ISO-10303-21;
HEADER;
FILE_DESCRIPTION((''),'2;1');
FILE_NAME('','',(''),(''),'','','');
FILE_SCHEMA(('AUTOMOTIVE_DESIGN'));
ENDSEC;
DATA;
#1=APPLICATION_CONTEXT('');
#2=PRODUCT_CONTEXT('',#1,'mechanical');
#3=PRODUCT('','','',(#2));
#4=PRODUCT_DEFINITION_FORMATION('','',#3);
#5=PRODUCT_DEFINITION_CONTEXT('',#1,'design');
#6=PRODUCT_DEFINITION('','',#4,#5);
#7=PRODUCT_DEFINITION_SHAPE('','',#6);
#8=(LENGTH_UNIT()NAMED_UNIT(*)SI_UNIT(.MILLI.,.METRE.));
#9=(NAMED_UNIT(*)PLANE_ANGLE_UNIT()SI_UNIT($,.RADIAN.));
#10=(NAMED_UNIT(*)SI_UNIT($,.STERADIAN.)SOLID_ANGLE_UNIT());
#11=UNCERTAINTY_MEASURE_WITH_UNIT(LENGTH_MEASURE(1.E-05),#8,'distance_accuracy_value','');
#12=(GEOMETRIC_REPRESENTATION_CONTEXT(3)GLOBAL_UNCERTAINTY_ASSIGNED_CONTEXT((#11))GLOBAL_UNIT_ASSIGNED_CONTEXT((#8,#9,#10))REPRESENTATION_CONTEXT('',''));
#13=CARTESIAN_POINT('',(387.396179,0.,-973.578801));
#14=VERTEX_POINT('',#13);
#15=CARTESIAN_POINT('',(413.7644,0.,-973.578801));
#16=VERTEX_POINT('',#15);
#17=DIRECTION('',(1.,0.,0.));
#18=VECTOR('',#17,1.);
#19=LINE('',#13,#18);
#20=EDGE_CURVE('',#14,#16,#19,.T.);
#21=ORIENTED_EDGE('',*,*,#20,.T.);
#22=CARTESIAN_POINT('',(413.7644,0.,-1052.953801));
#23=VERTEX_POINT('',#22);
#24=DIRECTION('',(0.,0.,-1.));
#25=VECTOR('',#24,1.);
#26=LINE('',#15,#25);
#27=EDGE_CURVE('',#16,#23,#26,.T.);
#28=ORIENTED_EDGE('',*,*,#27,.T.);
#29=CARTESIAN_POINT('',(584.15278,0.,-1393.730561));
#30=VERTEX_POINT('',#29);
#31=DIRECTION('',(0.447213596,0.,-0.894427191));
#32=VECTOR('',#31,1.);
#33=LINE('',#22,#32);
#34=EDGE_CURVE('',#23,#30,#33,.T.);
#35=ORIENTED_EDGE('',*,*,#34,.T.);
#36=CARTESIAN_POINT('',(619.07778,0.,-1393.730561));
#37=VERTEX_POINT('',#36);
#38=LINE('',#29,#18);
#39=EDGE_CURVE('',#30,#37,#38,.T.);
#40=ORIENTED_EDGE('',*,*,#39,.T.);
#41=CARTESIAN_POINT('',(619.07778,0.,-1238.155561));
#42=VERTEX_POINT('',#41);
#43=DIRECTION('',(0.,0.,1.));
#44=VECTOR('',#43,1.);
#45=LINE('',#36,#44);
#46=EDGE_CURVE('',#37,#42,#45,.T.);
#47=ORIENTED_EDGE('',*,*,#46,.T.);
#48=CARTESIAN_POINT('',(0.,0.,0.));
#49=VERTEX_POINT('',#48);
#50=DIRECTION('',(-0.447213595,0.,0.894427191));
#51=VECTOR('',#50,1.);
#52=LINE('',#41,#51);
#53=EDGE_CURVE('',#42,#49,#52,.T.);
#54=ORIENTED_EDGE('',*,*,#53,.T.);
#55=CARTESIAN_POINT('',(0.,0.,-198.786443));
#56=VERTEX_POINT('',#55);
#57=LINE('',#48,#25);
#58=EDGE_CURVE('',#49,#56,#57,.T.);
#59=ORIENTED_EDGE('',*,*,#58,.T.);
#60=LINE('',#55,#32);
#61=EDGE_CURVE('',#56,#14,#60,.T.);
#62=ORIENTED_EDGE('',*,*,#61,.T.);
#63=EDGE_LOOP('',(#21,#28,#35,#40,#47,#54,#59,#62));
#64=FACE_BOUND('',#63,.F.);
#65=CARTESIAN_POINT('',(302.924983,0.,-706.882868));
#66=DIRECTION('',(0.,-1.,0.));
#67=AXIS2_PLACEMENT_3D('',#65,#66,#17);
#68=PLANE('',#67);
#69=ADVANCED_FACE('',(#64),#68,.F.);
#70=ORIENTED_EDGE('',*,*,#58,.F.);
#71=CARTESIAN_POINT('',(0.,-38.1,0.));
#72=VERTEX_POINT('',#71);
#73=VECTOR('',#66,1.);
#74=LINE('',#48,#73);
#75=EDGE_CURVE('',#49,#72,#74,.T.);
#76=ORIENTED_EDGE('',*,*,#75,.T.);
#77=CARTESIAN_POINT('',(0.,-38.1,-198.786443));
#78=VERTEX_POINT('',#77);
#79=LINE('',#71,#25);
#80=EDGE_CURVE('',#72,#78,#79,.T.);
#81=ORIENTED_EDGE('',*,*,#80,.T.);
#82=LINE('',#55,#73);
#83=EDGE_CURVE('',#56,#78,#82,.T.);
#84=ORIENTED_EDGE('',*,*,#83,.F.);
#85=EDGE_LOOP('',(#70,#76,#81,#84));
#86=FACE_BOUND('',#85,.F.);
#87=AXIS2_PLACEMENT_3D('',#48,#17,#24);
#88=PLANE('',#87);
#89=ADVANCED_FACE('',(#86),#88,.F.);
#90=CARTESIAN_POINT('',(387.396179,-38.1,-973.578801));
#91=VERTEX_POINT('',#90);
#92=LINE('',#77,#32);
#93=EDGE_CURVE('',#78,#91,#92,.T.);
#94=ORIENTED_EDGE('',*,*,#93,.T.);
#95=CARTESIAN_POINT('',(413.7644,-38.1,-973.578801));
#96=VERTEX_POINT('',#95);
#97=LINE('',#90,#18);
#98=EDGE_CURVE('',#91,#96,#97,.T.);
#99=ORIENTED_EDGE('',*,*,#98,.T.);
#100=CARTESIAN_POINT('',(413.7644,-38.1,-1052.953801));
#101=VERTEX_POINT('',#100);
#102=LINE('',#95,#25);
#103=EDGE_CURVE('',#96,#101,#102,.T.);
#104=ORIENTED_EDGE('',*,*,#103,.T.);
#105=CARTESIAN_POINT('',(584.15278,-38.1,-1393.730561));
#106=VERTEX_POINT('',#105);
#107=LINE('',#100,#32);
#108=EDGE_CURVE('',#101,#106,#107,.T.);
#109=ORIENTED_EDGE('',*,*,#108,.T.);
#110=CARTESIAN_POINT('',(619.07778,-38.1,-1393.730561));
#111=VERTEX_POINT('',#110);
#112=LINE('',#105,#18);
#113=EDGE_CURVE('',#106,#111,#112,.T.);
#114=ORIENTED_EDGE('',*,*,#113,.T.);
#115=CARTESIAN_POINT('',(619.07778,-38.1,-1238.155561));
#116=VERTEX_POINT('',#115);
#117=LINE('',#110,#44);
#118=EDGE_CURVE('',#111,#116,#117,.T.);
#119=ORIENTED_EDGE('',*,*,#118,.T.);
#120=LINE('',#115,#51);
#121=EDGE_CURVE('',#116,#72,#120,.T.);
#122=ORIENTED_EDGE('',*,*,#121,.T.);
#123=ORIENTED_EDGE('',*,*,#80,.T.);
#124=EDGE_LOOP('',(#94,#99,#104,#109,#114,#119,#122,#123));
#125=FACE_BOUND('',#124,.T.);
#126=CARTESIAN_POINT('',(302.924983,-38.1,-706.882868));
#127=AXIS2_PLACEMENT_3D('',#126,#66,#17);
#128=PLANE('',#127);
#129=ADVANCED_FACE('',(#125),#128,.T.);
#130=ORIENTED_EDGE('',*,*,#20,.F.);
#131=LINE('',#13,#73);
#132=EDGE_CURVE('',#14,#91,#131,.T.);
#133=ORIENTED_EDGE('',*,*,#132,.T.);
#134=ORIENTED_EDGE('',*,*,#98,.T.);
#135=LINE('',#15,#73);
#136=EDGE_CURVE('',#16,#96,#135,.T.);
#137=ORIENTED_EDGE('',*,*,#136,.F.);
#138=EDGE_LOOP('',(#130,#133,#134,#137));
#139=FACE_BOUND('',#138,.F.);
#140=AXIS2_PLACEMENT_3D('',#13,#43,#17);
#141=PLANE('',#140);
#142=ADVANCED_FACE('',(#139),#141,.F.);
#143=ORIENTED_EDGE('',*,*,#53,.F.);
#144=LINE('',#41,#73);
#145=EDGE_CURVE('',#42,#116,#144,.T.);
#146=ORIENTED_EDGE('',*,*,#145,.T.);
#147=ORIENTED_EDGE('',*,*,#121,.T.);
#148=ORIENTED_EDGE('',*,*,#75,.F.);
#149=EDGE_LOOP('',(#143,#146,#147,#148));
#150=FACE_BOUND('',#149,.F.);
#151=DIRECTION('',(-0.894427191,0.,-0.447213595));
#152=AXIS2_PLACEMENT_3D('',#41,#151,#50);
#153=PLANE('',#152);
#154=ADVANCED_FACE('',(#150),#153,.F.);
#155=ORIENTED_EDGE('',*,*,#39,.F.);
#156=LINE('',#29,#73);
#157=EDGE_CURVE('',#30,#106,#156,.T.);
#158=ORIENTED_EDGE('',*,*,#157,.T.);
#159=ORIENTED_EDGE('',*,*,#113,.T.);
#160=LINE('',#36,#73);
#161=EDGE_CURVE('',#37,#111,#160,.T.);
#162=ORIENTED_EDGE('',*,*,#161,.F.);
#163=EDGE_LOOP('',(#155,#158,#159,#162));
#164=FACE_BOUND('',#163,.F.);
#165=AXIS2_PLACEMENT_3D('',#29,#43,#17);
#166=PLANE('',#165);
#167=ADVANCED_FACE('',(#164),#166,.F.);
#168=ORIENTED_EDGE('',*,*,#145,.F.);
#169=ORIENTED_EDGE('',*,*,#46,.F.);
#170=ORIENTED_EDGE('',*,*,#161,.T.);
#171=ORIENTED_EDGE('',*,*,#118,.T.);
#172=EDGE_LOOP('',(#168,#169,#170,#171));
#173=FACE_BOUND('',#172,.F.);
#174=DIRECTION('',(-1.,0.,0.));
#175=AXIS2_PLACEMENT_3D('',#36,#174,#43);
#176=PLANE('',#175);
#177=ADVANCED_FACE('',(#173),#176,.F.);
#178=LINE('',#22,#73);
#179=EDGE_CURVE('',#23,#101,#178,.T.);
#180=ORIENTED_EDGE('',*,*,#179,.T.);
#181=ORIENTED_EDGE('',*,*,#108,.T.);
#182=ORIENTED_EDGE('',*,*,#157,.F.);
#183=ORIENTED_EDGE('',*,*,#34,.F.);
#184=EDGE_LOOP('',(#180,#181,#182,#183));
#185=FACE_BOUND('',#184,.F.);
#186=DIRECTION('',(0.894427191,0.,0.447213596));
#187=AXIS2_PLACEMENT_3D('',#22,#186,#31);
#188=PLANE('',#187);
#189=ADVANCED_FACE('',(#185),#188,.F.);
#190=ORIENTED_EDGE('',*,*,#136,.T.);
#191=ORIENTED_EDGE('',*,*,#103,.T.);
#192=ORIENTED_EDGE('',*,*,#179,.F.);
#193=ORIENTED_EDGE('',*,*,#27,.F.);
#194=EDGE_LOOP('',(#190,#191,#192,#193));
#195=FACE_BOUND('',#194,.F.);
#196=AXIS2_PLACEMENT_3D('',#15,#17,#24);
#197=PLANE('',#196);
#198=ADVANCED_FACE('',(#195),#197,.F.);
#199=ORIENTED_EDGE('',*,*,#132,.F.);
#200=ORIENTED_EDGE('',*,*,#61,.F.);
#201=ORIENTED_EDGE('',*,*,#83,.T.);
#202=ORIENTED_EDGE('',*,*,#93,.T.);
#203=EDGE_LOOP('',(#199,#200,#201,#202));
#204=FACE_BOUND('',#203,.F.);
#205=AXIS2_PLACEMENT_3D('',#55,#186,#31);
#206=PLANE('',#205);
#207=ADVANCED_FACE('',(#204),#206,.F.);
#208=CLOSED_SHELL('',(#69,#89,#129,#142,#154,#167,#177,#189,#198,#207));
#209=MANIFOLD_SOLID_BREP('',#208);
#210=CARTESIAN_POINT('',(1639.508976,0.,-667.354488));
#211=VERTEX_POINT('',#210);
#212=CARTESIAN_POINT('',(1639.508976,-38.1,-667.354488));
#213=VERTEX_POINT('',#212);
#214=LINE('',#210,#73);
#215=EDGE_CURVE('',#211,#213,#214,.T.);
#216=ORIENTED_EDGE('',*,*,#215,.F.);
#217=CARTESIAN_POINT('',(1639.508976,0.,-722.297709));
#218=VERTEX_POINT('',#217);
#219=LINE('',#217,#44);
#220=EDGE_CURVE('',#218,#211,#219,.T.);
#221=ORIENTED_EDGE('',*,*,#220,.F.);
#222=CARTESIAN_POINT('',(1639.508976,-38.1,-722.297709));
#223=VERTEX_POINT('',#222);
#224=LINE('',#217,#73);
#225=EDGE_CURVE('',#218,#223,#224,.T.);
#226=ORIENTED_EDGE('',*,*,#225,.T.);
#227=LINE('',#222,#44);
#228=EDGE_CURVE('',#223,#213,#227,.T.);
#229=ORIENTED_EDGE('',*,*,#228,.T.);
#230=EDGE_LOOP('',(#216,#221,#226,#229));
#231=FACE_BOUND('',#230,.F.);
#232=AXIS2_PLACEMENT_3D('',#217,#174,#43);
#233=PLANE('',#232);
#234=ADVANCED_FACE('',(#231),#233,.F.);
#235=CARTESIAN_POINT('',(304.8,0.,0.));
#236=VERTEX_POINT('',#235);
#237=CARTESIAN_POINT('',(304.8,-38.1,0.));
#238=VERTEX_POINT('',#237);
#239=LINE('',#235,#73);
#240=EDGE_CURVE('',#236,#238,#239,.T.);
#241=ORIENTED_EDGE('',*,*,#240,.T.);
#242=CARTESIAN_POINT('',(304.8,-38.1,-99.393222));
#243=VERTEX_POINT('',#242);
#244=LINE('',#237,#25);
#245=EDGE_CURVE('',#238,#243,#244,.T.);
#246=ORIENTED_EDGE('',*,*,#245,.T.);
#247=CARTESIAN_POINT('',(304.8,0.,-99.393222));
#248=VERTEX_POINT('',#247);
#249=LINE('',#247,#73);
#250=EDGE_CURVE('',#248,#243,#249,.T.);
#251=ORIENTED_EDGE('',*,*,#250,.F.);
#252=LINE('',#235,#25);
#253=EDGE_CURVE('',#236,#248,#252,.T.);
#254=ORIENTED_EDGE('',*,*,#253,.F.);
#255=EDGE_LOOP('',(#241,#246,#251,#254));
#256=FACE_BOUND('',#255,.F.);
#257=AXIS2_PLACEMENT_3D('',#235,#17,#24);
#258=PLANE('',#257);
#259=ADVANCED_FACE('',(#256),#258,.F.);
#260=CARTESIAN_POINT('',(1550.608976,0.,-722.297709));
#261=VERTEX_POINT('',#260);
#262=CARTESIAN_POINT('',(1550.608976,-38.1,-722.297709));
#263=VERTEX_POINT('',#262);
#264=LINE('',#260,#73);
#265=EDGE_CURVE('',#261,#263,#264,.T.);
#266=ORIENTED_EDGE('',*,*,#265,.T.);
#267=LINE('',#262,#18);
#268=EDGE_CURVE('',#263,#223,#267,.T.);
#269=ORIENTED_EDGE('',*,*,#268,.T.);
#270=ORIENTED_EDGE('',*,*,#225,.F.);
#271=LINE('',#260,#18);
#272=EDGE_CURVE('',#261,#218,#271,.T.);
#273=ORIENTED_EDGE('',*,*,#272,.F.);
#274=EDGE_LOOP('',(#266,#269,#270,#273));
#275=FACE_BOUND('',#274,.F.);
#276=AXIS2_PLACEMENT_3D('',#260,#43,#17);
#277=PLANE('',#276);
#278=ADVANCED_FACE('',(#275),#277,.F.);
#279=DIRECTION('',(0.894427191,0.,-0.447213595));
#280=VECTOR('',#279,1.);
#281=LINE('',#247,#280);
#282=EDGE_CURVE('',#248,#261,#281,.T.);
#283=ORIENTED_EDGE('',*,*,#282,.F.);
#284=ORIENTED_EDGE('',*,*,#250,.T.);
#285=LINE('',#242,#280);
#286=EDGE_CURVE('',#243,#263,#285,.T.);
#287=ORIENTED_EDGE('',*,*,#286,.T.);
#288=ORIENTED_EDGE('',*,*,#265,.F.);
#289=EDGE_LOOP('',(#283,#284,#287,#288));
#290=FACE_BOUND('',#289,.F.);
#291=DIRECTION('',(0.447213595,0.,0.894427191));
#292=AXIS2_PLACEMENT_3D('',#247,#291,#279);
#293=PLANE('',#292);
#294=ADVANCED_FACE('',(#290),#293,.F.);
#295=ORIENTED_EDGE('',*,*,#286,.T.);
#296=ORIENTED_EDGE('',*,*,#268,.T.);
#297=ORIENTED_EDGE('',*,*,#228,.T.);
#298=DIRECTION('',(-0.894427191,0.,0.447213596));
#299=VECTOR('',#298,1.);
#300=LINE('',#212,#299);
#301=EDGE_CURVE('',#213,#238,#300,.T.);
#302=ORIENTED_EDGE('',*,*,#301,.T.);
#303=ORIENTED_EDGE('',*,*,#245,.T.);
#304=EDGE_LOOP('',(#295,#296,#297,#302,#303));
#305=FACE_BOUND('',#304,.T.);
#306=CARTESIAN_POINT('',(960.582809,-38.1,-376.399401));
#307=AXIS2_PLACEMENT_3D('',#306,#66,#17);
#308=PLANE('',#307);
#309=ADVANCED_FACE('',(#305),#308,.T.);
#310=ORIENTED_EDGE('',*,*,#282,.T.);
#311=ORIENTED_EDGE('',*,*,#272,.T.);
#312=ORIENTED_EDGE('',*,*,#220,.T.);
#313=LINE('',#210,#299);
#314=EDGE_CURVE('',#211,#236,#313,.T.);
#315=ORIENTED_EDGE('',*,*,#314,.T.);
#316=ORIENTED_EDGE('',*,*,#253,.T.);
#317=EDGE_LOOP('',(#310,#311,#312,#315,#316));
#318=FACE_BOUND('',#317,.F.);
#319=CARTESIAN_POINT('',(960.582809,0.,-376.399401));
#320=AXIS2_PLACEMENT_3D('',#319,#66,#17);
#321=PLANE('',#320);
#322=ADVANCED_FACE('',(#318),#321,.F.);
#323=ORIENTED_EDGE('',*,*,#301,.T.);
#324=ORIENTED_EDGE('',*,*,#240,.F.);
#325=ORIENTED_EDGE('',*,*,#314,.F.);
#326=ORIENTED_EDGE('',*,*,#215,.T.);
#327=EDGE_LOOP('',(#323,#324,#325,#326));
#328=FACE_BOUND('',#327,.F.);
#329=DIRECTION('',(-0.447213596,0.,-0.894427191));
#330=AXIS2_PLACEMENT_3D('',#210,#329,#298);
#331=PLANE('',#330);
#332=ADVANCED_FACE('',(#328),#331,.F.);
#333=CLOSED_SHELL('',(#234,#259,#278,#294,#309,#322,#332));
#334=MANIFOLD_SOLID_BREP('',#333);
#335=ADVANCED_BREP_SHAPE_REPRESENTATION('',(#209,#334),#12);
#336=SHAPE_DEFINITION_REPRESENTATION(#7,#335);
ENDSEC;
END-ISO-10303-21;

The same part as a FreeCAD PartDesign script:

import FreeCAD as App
import Part
import Sketcher
Q = App.Units.Quantity

doc = App.newDocument("Part")
params = doc.addObject("Spreadsheet::Sheet", "Params")
for row, (alias, value) in enumerate([
    ("sketch1_length", "15 in"),
    ("sketch1_length2", "54.5 in"),
    ("sketch1_width", "1.375 in"),
    ("sketch1_height", "3.125 in"),
    ("sketch1_height2", "6.125 in"),
    ("pad1_length", "1.5 in"),
    ("sketch2_width", "3.5 in"),
    ("sketch2_length", "58.75 in"),
    ("pad2_length", "1.5 in"),
], start=1):
    params.set(f"A{row}", alias)
    params.set(f"B{row}", "=" + value)
    params.setAlias(f"B{row}", alias)

body = doc.addObject("PartDesign::Body", "Body")

# Sketch on XZ plane
sketch1 = body.newObject("Sketcher::SketchObject", "Sketch")
sketch1.AttachmentSupport = (doc.getObject("XZ_Plane"), [""])
sketch1.MapMode = "FlatFace"
sketch1.addGeometry([
    Part.LineSegment(App.Vector(619, -1238, 0), App.Vector(0, 0, 0)),  # 0
    Part.LineSegment(App.Vector(0, 0, 0), App.Vector(0, -199, 0)),  # 1
    Part.LineSegment(App.Vector(0, -199, 0), App.Vector(387, -974, 0)),  # 2
    Part.LineSegment(App.Vector(387, -974, 0), App.Vector(414, -974, 0)),  # 3
    Part.LineSegment(App.Vector(414, -974, 0), App.Vector(414, -1053, 0)),  # 4
    Part.LineSegment(App.Vector(414, -1053, 0), App.Vector(584, -1394, 0)),  # 5
    Part.LineSegment(App.Vector(584, -1394, 0), App.Vector(619, -1394, 0)),  # 6
    Part.LineSegment(App.Vector(619, -1394, 0), App.Vector(619, -1238, 0)),  # 7
], False)
sketch1.addConstraint([
    Sketcher.Constraint("Coincident", 0, 2, 1, 1),
    Sketcher.Constraint("Coincident", 1, 2, 2, 1),
    Sketcher.Constraint("Coincident", 2, 2, 3, 1),
    Sketcher.Constraint("Coincident", 3, 2, 4, 1),
    Sketcher.Constraint("Coincident", 4, 2, 5, 1),
    Sketcher.Constraint("Coincident", 5, 2, 6, 1),
    Sketcher.Constraint("Coincident", 6, 2, 7, 1),
    Sketcher.Constraint("Coincident", 7, 2, 0, 1),
    Sketcher.Constraint("Vertical", 1),
    Sketcher.Constraint("Horizontal", 3),
    Sketcher.Constraint("Vertical", 4),
    Sketcher.Constraint("Horizontal", 6),
    Sketcher.Constraint("Vertical", 7),
    Sketcher.Constraint("Coincident", 0, 2, -1, 1),
    Sketcher.Constraint("Parallel", 0, 2),
    Sketcher.Constraint("Parallel", 2, 5),
    Sketcher.Constraint("Distance", 5, Q("15 in")),
    Sketcher.Constraint("Distance", 0, Q("54.5 in")),
    Sketcher.Constraint("DistanceX", 6, 1, 6, 2, Q("1.375 in")),
    Sketcher.Constraint("DistanceY", 4, 2, 4, 1, Q("3.125 in")),
    Sketcher.Constraint("DistanceY", 7, 1, 7, 2, Q("6.125 in")),
    Sketcher.Constraint("DistanceX", 3, 1, 3, 2, Q("26.368221 mm")),
    Sketcher.Constraint("DistanceY", 2, 2, -1, 1, Q("973.578801 mm")),
])
sketch1.setExpression("Constraints[16]", "Params.sketch1_length")
sketch1.setExpression("Constraints[17]", "Params.sketch1_length2")
sketch1.setExpression("Constraints[18]", "Params.sketch1_width")
sketch1.setExpression("Constraints[19]", "Params.sketch1_height")
sketch1.setExpression("Constraints[20]", "Params.sketch1_height2")
pad1 = body.newObject("PartDesign::Pad", "Pad")
pad1.Profile = sketch1
pad1.setExpression("Length", "Params.pad1_length")
body2 = doc.addObject("PartDesign::Body", "Body001")

# Sketch on XZ plane
sketch2 = body2.newObject("Sketcher::SketchObject", "Sketch001")
sketch2.AttachmentSupport = (doc.getObject("XZ_Plane001"), [""])
sketch2.MapMode = "FlatFace"
sketch2.addGeometry([
    Part.LineSegment(App.Vector(1640, -667, 0), App.Vector(305, 0, 0)),  # 0
    Part.LineSegment(App.Vector(305, 0, 0), App.Vector(305, -99, 0)),  # 1
    Part.LineSegment(App.Vector(305, -99, 0), App.Vector(1551, -722, 0)),  # 2
    Part.LineSegment(App.Vector(1551, -722, 0), App.Vector(1640, -722, 0)),  # 3
    Part.LineSegment(App.Vector(1640, -722, 0), App.Vector(1640, -667, 0)),  # 4
], False)
sketch2.addConstraint([
    Sketcher.Constraint("Coincident", 0, 2, 1, 1),
    Sketcher.Constraint("Coincident", 1, 2, 2, 1),
    Sketcher.Constraint("Coincident", 2, 2, 3, 1),
    Sketcher.Constraint("Coincident", 3, 2, 4, 1),
    Sketcher.Constraint("Coincident", 4, 2, 0, 1),
    Sketcher.Constraint("Vertical", 1),
    Sketcher.Constraint("Horizontal", 3),
    Sketcher.Constraint("Vertical", 4),
    Sketcher.Constraint("PointOnObject", 0, 2, -1),
    Sketcher.Constraint("Parallel", 0, 2),
    Sketcher.Constraint("DistanceX", 3, 1, 3, 2, Q("3.5 in")),
    Sketcher.Constraint("DistanceX", -1, 1, 0, 2, Q("12 in")),
    Sketcher.Constraint("Distance", 0, Q("58.75 in")),
    Sketcher.Constraint("DistanceY", 1, 2, 1, 1, Q("99.393222 mm")),
    Sketcher.Constraint("DistanceY", 4, 1, 4, 2, Q("54.943221 mm")),
])
sketch2.setExpression("Constraints[10]", "Params.sketch2_width")
sketch2.setExpression("Constraints[12]", "Params.sketch2_length")
pad2 = body2.newObject("PartDesign::Pad", "Pad001")
pad2.Profile = sketch2
pad2.setExpression("Length", "Params.pad2_length")

doc.recompute()
